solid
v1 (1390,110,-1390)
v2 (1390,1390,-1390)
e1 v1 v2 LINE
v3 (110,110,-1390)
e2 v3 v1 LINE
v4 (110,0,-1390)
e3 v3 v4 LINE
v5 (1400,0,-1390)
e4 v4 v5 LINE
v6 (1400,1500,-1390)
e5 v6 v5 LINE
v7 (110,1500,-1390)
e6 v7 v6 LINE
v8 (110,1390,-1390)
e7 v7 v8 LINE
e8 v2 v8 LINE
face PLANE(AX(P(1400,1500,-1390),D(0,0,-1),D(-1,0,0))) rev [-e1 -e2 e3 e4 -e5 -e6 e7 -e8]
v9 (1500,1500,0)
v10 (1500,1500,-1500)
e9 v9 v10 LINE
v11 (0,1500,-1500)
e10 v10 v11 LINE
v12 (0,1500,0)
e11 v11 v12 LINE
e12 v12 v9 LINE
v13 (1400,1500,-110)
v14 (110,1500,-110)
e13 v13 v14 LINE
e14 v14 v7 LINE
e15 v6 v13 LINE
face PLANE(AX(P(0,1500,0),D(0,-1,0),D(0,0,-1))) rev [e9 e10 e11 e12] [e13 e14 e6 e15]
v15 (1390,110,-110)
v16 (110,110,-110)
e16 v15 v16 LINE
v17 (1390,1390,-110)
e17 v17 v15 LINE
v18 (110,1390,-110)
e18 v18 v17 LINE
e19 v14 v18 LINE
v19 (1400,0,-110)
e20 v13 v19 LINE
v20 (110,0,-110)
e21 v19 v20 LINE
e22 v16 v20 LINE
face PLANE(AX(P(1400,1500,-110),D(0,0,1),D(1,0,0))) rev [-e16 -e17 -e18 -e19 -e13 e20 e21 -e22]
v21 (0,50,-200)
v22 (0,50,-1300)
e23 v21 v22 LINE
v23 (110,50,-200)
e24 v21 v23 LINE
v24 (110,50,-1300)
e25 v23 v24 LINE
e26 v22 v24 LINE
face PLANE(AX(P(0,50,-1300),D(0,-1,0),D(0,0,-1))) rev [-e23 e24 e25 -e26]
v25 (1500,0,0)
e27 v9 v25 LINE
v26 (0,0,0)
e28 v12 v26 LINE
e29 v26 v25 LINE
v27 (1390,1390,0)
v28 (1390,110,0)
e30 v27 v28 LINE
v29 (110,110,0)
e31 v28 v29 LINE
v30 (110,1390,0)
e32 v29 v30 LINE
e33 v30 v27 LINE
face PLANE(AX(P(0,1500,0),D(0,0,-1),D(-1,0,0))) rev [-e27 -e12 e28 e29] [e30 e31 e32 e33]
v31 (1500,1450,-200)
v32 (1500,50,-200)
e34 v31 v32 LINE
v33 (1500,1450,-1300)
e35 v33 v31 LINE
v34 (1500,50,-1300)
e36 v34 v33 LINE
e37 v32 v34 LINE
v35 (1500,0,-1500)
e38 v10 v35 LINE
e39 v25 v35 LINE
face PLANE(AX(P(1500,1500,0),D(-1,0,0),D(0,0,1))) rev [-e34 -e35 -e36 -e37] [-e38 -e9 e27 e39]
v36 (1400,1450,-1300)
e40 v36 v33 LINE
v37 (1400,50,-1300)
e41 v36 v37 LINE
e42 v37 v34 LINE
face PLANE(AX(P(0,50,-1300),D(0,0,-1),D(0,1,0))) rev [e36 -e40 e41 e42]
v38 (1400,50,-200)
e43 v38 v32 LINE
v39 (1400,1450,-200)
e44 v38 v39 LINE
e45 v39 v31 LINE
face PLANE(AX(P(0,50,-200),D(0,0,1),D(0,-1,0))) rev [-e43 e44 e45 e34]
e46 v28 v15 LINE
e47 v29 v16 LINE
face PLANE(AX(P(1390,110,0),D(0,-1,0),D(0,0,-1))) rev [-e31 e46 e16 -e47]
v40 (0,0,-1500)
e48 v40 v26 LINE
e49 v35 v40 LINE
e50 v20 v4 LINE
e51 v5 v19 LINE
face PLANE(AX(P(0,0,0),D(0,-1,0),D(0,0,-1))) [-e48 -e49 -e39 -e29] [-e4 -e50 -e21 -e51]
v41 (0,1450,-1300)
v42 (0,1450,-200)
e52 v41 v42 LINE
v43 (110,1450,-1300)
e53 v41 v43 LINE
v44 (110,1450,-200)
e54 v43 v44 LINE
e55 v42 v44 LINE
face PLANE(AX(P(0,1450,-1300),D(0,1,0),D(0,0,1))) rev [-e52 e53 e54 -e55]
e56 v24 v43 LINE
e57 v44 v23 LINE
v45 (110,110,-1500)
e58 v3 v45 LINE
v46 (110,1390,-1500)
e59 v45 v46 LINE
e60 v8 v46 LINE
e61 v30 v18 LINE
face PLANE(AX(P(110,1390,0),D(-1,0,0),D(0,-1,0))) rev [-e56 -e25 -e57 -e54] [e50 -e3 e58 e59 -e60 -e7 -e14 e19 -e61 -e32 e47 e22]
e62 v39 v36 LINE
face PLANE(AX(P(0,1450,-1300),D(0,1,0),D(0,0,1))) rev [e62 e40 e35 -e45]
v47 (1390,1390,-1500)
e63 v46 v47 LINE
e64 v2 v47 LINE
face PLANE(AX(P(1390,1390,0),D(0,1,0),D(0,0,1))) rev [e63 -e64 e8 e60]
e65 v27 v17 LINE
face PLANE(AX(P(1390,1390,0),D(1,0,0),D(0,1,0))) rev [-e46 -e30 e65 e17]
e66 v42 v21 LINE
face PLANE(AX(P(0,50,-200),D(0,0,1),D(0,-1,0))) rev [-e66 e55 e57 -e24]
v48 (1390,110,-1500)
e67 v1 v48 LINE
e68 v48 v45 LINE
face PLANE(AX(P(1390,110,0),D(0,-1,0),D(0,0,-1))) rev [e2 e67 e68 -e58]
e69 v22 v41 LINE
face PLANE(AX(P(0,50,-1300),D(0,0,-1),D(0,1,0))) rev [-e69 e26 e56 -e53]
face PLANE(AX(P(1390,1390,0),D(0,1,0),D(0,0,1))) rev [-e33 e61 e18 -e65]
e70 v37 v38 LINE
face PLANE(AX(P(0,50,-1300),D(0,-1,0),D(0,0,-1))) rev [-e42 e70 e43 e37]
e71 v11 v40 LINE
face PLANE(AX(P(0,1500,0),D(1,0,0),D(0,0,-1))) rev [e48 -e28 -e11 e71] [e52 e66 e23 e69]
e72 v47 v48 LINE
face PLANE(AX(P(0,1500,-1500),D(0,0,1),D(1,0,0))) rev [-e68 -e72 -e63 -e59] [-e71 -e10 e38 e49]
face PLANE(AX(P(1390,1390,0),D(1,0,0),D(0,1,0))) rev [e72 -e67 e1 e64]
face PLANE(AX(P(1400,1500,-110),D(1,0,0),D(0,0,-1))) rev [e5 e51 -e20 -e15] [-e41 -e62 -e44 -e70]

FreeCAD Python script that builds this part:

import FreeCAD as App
import Part
import Sketcher

V = App.Vector

doc = App.newDocument("Part")
body = doc.addObject("PartDesign::Body", "Body")

# Sketch on XZ plane
sketch1 = body.newObject("Sketcher::SketchObject", "Sketch")
sketch1.AttachmentSupport = (doc.getObject("XZ_Plane"), [""])
sketch1.MapMode = "FlatFace"
sketch1.addGeometry([
    Part.LineSegment(V(0, -1500, 0), V(0, 0, 0)),
    Part.LineSegment(V(0, 0, 0), V(1500, 0, 0)),
    Part.LineSegment(V(1500, 0, 0), V(1500, -1500, 0)),
    Part.LineSegment(V(1500, -1500, 0), V(0, -1500, 0)),
], False)
sketch1.addConstraint([
    Sketcher.Constraint("Coincident", 0, 2, 1, 1),
    Sketcher.Constraint("Coincident", 1, 2, 2, 1),
    Sketcher.Constraint("Coincident", 2, 2, 3, 1),
    Sketcher.Constraint("Coincident", 3, 2, 0, 1),
    Sketcher.Constraint("Vertical", 0),
    Sketcher.Constraint("Horizontal", 1),
    Sketcher.Constraint("Vertical", 2),
    Sketcher.Constraint("Horizontal", 3),
    Sketcher.Constraint("Coincident", 0, 2, -1, 1),
    Sketcher.Constraint("Equal", 3, 0),
    Sketcher.Constraint("DistanceX", 1, 1, 1, 2, 1500.0),
])
pad1 = body.newObject("PartDesign::Pad", "Pad")
pad1.Profile = sketch1
pad1.Length = 1500
pad1.Reversed = True

# Sketch on YZ plane
sketch2 = body.newObject("Sketcher::SketchObject", "Sketch001")
sketch2.AttachmentSupport = (doc.getObject("YZ_Plane"), [""])
sketch2.MapMode = "FlatFace"
sketch2.AttachmentOffset = App.Placement(V(0, 0, 1000), App.Rotation())
sketch2.addGeometry([
    Part.LineSegment(V(1450, -200, 0), V(50, -200, 0)),
    Part.LineSegment(V(50, -200, 0), V(50, -1300, 0)),
    Part.LineSegment(V(50, -1300, 0), V(1450, -1300, 0)),
    Part.LineSegment(V(1450, -1300, 0), V(1450, -200, 0)),
], False)
sketch2.addConstraint([
    Sketcher.Constraint("Coincident", 0, 2, 1, 1),
    Sketcher.Constraint("Coincident", 1, 2, 2, 1),
    Sketcher.Constraint("Coincident", 2, 2, 3, 1),
    Sketcher.Constraint("Coincident", 3, 2, 0, 1),
    Sketcher.Constraint("Horizontal", 0),
    Sketcher.Constraint("Vertical", 1),
    Sketcher.Constraint("Horizontal", 2),
    Sketcher.Constraint("Vertical", 3),
    Sketcher.Constraint("DistanceX", 0, 2, 0, 1, 1400.0),
    Sketcher.Constraint("DistanceY", 1, 2, 1, 1, 1100.0),
    Sketcher.Constraint("DistanceX", -1, 1, 0, 2, 50.0),
    Sketcher.Constraint("DistanceY", 0, 2, -1, 1, 200.0),
])
pocket1 = body.newObject("PartDesign::Pocket", "Pocket")
pocket1.Profile = sketch2
pocket1.Type = "ThroughAll"
pocket1.Midplane = True

# Sketch on XY plane
sketch3 = body.newObject("Sketcher::SketchObject", "Sketch002")
sketch3.AttachmentSupport = (doc.getObject("XY_Plane"), [""])
sketch3.MapMode = "FlatFace"
sketch3.AttachmentOffset = App.Placement(V(0, 0, -1000), App.Rotation())
sketch3.addGeometry([
    Part.LineSegment(V(1390, 1390, 0), V(1390, 110, 0)),
    Part.LineSegment(V(1390, 110, 0), V(110, 110, 0)),
    Part.LineSegment(V(110, 110, 0), V(110, 1390, 0)),
    Part.LineSegment(V(110, 1390, 0), V(1390, 1390, 0)),
], False)
sketch3.addConstraint([
    Sketcher.Constraint("Coincident", 0, 2, 1, 1),
    Sketcher.Constraint("Coincident", 1, 2, 2, 1),
    Sketcher.Constraint("Coincident", 2, 2, 3, 1),
    Sketcher.Constraint("Coincident", 3, 2, 0, 1),
    Sketcher.Constraint("Vertical", 0),
    Sketcher.Constraint("Horizontal", 1),
    Sketcher.Constraint("Vertical", 2),
    Sketcher.Constraint("Horizontal", 3),
    Sketcher.Constraint("Equal", 3, 0),
    Sketcher.Constraint("DistanceX", 1, 2, 1, 1, 1280.0),
    Sketcher.Constraint("DistanceX", -1, 1, 0, 2, 1390.0),
    Sketcher.Constraint("DistanceY", -1, 1, 0, 2, 110.0),
])
pocket2 = body.newObject("PartDesign::Pocket", "Pocket001")
pocket2.Profile = sketch3
pocket2.Type = "ThroughAll"
pocket2.Midplane = True

# Sketch on XZ plane
sketch4 = body.newObject("Sketcher::SketchObject", "Sketch003")
sketch4.AttachmentSupport = (doc.getObject("XZ_Plane"), [""])
sketch4.MapMode = "FlatFace"
sketch4.AttachmentOffset = App.Placement(V(0, 0, -500), App.Rotation())
sketch4.addGeometry([
    Part.LineSegment(V(1400, -1390, 0), V(1400, -110, 0)),
    Part.LineSegment(V(1400, -110, 0), V(110, -110, 0)),
    Part.LineSegment(V(110, -110, 0), V(110, -1390, 0)),
    Part.LineSegment(V(110, -1390, 0), V(1400, -1390, 0)),
], False)
sketch4.addConstraint([
    Sketcher.Constraint("Coincident", 0, 2, 1, 1),
    Sketcher.Constraint("Coincident", 1, 2, 2, 1),
    Sketcher.Constraint("Coincident", 2, 2, 3, 1),
    Sketcher.Constraint("Coincident", 3, 2, 0, 1),
    Sketcher.Constraint("Vertical", 0),
    Sketcher.Constraint("Horizontal", 1),
    Sketcher.Constraint("Vertical", 2),
    Sketcher.Constraint("Horizontal", 3),
    Sketcher.Constraint("DistanceX", 1, 2, 1, 1, 1290.0),
    Sketcher.Constraint("DistanceY", 0, 1, 0, 2, 1280.0),
    Sketcher.Constraint("DistanceX", -1, 1, 0, 2, 1400.0),
    Sketcher.Constraint("DistanceY", 0, 2, -1, 1, 110.0),
])
pocket3 = body.newObject("PartDesign::Pocket", "Pocket002")
pocket3.Profile = sketch4
pocket3.Type = "ThroughAll"
pocket3.Midplane = True

doc.recompute()
